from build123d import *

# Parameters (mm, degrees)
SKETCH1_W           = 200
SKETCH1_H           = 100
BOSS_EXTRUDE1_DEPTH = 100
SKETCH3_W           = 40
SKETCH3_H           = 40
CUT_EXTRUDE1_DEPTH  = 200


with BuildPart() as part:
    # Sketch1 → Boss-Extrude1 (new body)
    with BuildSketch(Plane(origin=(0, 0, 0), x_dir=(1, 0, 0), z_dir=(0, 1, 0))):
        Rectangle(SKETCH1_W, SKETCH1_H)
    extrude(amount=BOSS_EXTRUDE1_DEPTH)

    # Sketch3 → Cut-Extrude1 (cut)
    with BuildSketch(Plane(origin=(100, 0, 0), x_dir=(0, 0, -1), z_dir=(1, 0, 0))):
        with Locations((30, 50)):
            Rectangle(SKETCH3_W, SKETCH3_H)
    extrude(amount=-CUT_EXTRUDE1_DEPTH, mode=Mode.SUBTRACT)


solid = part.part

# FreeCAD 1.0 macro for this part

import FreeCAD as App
import Part
import Sketcher
from FreeCAD import Vector
Q = App.Units.Quantity


def add_polygon(sketch, points):
    """Adds a closed chain of lines whose ends are joined by coincident constraints."""
    first, n = sketch.GeometryCount, len(points)
    for a, b in zip(points, points[1:] + points[:1]):
        sketch.addGeometry(Part.LineSegment(App.Vector(*a, 0), App.Vector(*b, 0)), False)
    for i in range(n):
        sketch.addConstraint(Sketcher.Constraint("Coincident", first + i, 2, first + (i + 1) % n, 1))

doc = App.newDocument("Part")
params = doc.addObject("Spreadsheet::Sheet", "Params")
for row, (alias, value) in enumerate([
    ("sketch1_width", "200 mm"),
    ("sketch1_height", "100 mm"),
    ("pad1_length", "100 mm"),
    ("sketch2_width", "40 mm"),
    ("pocket1_length", "200 mm"),
], start=1):
    params.set(f"A{row}", alias)
    params.set(f"B{row}", "=" + value)
    params.setAlias(f"B{row}", alias)

body = doc.addObject("PartDesign::Body", "Body")

# Sketch on XZ plane
sketch1 = body.newObject("Sketcher::SketchObject", "Sketch")
sketch1.AttachmentSupport = (doc.getObject("XZ_Plane"), [""])
sketch1.MapMode = "FlatFace"
add_polygon(sketch1, [(-100, -50), (-100, 50), (100, 50), (100, -50)])  # lines 0-3
sketch1.addConstraint([
    Sketcher.Constraint("Vertical", 0),
    Sketcher.Constraint("Horizontal", 1),
    Sketcher.Constraint("Vertical", 2),
    Sketcher.Constraint("Horizontal", 3),
    Sketcher.Constraint("Symmetric", 0, 2, 2, 2, -1, 1),
    Sketcher.Constraint("DistanceX", 1, 1, 1, 2, Q("200 mm")),
    Sketcher.Constraint("DistanceY", 0, 1, 0, 2, Q("100 mm")),
])
sketch1.setExpression("Constraints[9]", "Params.sketch1_width")
sketch1.setExpression("Constraints[10]", "Params.sketch1_height")
pad1 = body.newObject("PartDesign::Pad", "Pad")
pad1.Profile = sketch1
pad1.setExpression("Length", "Params.pad1_length")
pad1.Reversed = True

# Sketch on YZ plane
sketch2 = body.newObject("Sketcher::SketchObject", "Sketch001")
sketch2.AttachmentSupport = (doc.getObject("YZ_Plane"), [""])
sketch2.MapMode = "FlatFace"
sketch2.AttachmentOffset = App.Placement(Vector(0, 0, 100), App.Rotation())
add_polygon(sketch2, [(70, -10), (30, -10), (30, -50), (70, -50)])  # lines 0-3
sketch2.addConstraint([
    Sketcher.Constraint("Horizontal", 0),
    Sketcher.Constraint("Vertical", 1),
    Sketcher.Constraint("Horizontal", 2),
    Sketcher.Constraint("Vertical", 3),
    Sketcher.Constraint("Equal", 2, 1),
    Sketcher.Constraint("DistanceX", 0, 2, 0, 1, Q("40 mm")),
    Sketcher.Constraint("DistanceX", -1, 1, 0, 2, Q("30 mm")),
    Sketcher.Constraint("DistanceY", 0, 2, -1, 1, Q("10 mm")),
])
sketch2.setExpression("Constraints[9]", "Params.sketch2_width")
pocket1 = body.newObject("PartDesign::Pocket", "Pocket")
pocket1.Profile = sketch2
pocket1.setExpression("Length", "Params.pocket1_length")

doc.recompute()
